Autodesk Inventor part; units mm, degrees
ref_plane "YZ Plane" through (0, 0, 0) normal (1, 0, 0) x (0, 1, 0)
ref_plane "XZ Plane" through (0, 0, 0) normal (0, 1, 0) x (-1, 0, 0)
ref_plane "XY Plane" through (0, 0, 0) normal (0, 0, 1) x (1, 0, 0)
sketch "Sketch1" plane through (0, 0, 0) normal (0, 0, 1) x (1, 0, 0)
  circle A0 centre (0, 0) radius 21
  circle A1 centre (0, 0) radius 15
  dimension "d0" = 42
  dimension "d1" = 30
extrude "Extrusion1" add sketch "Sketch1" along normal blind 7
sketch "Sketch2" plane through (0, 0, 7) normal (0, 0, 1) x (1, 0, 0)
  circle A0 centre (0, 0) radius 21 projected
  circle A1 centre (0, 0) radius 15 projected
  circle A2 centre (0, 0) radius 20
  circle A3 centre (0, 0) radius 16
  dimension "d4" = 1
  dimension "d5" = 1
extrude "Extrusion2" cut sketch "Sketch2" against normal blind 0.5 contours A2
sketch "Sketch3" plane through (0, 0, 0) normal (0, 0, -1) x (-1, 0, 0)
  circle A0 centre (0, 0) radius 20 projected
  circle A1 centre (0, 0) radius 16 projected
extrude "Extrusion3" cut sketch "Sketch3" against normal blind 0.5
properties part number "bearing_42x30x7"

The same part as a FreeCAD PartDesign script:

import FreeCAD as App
import Part
import Sketcher
Q = App.Units.Quantity

doc = App.newDocument("Part")
body = doc.addObject("PartDesign::Body", "Body")

sketch1 = doc.addObject("Sketcher::SketchObject", "Sketch")
body.addObject(sketch1)
sketch1.AttachmentSupport = (doc.XY_Plane, [""])
sketch1.MapMode = "FlatFace"
sketch1.addGeometry([
    Part.Circle(App.Vector(0, 0, 0), App.Vector(0, 0, 1), 21),
    Part.Circle(App.Vector(0, 0, 0), App.Vector(0, 0, 1), 15),
], False)
sketch1.addConstraint([
    Sketcher.Constraint("Coincident", 0, 3, -1, 1),
    Sketcher.Constraint("Coincident", 1, 3, -1, 1),
    Sketcher.Constraint("Diameter", 0, Q("42 mm")),
    Sketcher.Constraint("Diameter", 1, Q("30 mm")),
])
pad1 = doc.addObject("PartDesign::Pad", "Pad")
body.addObject(pad1)
pad1.Profile = sketch1
pad1.Length = 7

sketch2 = doc.addObject("Sketcher::SketchObject", "Sketch001")
body.addObject(sketch2)
sketch2.AttachmentSupport = (doc.XY_Plane, [""])
sketch2.MapMode = "FlatFace"
sketch2.AttachmentOffset = App.Placement(App.Vector(0, 0, 7), App.Rotation())
sketch2.addGeometry([
    Part.Circle(App.Vector(0, 0, 0), App.Vector(0, 0, 1), 20),
    Part.Circle(App.Vector(0, 0, 0), App.Vector(0, 0, 1), 16),
], False)
sketch2.addConstraint([
    Sketcher.Constraint("Coincident", 0, 3, -1, 1),
    Sketcher.Constraint("Coincident", 1, 3, -1, 1),
    Sketcher.Constraint("Diameter", 0, Q("40 mm")),
    Sketcher.Constraint("Diameter", 1, Q("32 mm")),
])
pocket1 = doc.addObject("PartDesign::Pocket", "Pocket")
body.addObject(pocket1)
pocket1.Profile = sketch2
pocket1.Length = 0.5

sketch3 = doc.addObject("Sketcher::SketchObject", "Sketch002")
body.addObject(sketch3)
sketch3.AttachmentSupport = (doc.XY_Plane, [""])
sketch3.MapMode = "FlatFace"
sketch3.addGeometry([
    Part.Circle(App.Vector(0, 0, 0), App.Vector(0, 0, 1), 20),
    Part.Circle(App.Vector(0, 0, 0), App.Vector(0, 0, 1), 16),
], False)
sketch3.addConstraint([
    Sketcher.Constraint("Coincident", 0, 3, -1, 1),
    Sketcher.Constraint("Coincident", 1, 3, -1, 1),
    Sketcher.Constraint("Diameter", 0, Q("40 mm")),
    Sketcher.Constraint("Diameter", 1, Q("32 mm")),
])
pocket2 = doc.addObject("PartDesign::Pocket", "Pocket001")
body.addObject(pocket2)
pocket2.Profile = sketch3
pocket2.Length = 0.5
pocket2.Reversed = True

doc.recompute()
